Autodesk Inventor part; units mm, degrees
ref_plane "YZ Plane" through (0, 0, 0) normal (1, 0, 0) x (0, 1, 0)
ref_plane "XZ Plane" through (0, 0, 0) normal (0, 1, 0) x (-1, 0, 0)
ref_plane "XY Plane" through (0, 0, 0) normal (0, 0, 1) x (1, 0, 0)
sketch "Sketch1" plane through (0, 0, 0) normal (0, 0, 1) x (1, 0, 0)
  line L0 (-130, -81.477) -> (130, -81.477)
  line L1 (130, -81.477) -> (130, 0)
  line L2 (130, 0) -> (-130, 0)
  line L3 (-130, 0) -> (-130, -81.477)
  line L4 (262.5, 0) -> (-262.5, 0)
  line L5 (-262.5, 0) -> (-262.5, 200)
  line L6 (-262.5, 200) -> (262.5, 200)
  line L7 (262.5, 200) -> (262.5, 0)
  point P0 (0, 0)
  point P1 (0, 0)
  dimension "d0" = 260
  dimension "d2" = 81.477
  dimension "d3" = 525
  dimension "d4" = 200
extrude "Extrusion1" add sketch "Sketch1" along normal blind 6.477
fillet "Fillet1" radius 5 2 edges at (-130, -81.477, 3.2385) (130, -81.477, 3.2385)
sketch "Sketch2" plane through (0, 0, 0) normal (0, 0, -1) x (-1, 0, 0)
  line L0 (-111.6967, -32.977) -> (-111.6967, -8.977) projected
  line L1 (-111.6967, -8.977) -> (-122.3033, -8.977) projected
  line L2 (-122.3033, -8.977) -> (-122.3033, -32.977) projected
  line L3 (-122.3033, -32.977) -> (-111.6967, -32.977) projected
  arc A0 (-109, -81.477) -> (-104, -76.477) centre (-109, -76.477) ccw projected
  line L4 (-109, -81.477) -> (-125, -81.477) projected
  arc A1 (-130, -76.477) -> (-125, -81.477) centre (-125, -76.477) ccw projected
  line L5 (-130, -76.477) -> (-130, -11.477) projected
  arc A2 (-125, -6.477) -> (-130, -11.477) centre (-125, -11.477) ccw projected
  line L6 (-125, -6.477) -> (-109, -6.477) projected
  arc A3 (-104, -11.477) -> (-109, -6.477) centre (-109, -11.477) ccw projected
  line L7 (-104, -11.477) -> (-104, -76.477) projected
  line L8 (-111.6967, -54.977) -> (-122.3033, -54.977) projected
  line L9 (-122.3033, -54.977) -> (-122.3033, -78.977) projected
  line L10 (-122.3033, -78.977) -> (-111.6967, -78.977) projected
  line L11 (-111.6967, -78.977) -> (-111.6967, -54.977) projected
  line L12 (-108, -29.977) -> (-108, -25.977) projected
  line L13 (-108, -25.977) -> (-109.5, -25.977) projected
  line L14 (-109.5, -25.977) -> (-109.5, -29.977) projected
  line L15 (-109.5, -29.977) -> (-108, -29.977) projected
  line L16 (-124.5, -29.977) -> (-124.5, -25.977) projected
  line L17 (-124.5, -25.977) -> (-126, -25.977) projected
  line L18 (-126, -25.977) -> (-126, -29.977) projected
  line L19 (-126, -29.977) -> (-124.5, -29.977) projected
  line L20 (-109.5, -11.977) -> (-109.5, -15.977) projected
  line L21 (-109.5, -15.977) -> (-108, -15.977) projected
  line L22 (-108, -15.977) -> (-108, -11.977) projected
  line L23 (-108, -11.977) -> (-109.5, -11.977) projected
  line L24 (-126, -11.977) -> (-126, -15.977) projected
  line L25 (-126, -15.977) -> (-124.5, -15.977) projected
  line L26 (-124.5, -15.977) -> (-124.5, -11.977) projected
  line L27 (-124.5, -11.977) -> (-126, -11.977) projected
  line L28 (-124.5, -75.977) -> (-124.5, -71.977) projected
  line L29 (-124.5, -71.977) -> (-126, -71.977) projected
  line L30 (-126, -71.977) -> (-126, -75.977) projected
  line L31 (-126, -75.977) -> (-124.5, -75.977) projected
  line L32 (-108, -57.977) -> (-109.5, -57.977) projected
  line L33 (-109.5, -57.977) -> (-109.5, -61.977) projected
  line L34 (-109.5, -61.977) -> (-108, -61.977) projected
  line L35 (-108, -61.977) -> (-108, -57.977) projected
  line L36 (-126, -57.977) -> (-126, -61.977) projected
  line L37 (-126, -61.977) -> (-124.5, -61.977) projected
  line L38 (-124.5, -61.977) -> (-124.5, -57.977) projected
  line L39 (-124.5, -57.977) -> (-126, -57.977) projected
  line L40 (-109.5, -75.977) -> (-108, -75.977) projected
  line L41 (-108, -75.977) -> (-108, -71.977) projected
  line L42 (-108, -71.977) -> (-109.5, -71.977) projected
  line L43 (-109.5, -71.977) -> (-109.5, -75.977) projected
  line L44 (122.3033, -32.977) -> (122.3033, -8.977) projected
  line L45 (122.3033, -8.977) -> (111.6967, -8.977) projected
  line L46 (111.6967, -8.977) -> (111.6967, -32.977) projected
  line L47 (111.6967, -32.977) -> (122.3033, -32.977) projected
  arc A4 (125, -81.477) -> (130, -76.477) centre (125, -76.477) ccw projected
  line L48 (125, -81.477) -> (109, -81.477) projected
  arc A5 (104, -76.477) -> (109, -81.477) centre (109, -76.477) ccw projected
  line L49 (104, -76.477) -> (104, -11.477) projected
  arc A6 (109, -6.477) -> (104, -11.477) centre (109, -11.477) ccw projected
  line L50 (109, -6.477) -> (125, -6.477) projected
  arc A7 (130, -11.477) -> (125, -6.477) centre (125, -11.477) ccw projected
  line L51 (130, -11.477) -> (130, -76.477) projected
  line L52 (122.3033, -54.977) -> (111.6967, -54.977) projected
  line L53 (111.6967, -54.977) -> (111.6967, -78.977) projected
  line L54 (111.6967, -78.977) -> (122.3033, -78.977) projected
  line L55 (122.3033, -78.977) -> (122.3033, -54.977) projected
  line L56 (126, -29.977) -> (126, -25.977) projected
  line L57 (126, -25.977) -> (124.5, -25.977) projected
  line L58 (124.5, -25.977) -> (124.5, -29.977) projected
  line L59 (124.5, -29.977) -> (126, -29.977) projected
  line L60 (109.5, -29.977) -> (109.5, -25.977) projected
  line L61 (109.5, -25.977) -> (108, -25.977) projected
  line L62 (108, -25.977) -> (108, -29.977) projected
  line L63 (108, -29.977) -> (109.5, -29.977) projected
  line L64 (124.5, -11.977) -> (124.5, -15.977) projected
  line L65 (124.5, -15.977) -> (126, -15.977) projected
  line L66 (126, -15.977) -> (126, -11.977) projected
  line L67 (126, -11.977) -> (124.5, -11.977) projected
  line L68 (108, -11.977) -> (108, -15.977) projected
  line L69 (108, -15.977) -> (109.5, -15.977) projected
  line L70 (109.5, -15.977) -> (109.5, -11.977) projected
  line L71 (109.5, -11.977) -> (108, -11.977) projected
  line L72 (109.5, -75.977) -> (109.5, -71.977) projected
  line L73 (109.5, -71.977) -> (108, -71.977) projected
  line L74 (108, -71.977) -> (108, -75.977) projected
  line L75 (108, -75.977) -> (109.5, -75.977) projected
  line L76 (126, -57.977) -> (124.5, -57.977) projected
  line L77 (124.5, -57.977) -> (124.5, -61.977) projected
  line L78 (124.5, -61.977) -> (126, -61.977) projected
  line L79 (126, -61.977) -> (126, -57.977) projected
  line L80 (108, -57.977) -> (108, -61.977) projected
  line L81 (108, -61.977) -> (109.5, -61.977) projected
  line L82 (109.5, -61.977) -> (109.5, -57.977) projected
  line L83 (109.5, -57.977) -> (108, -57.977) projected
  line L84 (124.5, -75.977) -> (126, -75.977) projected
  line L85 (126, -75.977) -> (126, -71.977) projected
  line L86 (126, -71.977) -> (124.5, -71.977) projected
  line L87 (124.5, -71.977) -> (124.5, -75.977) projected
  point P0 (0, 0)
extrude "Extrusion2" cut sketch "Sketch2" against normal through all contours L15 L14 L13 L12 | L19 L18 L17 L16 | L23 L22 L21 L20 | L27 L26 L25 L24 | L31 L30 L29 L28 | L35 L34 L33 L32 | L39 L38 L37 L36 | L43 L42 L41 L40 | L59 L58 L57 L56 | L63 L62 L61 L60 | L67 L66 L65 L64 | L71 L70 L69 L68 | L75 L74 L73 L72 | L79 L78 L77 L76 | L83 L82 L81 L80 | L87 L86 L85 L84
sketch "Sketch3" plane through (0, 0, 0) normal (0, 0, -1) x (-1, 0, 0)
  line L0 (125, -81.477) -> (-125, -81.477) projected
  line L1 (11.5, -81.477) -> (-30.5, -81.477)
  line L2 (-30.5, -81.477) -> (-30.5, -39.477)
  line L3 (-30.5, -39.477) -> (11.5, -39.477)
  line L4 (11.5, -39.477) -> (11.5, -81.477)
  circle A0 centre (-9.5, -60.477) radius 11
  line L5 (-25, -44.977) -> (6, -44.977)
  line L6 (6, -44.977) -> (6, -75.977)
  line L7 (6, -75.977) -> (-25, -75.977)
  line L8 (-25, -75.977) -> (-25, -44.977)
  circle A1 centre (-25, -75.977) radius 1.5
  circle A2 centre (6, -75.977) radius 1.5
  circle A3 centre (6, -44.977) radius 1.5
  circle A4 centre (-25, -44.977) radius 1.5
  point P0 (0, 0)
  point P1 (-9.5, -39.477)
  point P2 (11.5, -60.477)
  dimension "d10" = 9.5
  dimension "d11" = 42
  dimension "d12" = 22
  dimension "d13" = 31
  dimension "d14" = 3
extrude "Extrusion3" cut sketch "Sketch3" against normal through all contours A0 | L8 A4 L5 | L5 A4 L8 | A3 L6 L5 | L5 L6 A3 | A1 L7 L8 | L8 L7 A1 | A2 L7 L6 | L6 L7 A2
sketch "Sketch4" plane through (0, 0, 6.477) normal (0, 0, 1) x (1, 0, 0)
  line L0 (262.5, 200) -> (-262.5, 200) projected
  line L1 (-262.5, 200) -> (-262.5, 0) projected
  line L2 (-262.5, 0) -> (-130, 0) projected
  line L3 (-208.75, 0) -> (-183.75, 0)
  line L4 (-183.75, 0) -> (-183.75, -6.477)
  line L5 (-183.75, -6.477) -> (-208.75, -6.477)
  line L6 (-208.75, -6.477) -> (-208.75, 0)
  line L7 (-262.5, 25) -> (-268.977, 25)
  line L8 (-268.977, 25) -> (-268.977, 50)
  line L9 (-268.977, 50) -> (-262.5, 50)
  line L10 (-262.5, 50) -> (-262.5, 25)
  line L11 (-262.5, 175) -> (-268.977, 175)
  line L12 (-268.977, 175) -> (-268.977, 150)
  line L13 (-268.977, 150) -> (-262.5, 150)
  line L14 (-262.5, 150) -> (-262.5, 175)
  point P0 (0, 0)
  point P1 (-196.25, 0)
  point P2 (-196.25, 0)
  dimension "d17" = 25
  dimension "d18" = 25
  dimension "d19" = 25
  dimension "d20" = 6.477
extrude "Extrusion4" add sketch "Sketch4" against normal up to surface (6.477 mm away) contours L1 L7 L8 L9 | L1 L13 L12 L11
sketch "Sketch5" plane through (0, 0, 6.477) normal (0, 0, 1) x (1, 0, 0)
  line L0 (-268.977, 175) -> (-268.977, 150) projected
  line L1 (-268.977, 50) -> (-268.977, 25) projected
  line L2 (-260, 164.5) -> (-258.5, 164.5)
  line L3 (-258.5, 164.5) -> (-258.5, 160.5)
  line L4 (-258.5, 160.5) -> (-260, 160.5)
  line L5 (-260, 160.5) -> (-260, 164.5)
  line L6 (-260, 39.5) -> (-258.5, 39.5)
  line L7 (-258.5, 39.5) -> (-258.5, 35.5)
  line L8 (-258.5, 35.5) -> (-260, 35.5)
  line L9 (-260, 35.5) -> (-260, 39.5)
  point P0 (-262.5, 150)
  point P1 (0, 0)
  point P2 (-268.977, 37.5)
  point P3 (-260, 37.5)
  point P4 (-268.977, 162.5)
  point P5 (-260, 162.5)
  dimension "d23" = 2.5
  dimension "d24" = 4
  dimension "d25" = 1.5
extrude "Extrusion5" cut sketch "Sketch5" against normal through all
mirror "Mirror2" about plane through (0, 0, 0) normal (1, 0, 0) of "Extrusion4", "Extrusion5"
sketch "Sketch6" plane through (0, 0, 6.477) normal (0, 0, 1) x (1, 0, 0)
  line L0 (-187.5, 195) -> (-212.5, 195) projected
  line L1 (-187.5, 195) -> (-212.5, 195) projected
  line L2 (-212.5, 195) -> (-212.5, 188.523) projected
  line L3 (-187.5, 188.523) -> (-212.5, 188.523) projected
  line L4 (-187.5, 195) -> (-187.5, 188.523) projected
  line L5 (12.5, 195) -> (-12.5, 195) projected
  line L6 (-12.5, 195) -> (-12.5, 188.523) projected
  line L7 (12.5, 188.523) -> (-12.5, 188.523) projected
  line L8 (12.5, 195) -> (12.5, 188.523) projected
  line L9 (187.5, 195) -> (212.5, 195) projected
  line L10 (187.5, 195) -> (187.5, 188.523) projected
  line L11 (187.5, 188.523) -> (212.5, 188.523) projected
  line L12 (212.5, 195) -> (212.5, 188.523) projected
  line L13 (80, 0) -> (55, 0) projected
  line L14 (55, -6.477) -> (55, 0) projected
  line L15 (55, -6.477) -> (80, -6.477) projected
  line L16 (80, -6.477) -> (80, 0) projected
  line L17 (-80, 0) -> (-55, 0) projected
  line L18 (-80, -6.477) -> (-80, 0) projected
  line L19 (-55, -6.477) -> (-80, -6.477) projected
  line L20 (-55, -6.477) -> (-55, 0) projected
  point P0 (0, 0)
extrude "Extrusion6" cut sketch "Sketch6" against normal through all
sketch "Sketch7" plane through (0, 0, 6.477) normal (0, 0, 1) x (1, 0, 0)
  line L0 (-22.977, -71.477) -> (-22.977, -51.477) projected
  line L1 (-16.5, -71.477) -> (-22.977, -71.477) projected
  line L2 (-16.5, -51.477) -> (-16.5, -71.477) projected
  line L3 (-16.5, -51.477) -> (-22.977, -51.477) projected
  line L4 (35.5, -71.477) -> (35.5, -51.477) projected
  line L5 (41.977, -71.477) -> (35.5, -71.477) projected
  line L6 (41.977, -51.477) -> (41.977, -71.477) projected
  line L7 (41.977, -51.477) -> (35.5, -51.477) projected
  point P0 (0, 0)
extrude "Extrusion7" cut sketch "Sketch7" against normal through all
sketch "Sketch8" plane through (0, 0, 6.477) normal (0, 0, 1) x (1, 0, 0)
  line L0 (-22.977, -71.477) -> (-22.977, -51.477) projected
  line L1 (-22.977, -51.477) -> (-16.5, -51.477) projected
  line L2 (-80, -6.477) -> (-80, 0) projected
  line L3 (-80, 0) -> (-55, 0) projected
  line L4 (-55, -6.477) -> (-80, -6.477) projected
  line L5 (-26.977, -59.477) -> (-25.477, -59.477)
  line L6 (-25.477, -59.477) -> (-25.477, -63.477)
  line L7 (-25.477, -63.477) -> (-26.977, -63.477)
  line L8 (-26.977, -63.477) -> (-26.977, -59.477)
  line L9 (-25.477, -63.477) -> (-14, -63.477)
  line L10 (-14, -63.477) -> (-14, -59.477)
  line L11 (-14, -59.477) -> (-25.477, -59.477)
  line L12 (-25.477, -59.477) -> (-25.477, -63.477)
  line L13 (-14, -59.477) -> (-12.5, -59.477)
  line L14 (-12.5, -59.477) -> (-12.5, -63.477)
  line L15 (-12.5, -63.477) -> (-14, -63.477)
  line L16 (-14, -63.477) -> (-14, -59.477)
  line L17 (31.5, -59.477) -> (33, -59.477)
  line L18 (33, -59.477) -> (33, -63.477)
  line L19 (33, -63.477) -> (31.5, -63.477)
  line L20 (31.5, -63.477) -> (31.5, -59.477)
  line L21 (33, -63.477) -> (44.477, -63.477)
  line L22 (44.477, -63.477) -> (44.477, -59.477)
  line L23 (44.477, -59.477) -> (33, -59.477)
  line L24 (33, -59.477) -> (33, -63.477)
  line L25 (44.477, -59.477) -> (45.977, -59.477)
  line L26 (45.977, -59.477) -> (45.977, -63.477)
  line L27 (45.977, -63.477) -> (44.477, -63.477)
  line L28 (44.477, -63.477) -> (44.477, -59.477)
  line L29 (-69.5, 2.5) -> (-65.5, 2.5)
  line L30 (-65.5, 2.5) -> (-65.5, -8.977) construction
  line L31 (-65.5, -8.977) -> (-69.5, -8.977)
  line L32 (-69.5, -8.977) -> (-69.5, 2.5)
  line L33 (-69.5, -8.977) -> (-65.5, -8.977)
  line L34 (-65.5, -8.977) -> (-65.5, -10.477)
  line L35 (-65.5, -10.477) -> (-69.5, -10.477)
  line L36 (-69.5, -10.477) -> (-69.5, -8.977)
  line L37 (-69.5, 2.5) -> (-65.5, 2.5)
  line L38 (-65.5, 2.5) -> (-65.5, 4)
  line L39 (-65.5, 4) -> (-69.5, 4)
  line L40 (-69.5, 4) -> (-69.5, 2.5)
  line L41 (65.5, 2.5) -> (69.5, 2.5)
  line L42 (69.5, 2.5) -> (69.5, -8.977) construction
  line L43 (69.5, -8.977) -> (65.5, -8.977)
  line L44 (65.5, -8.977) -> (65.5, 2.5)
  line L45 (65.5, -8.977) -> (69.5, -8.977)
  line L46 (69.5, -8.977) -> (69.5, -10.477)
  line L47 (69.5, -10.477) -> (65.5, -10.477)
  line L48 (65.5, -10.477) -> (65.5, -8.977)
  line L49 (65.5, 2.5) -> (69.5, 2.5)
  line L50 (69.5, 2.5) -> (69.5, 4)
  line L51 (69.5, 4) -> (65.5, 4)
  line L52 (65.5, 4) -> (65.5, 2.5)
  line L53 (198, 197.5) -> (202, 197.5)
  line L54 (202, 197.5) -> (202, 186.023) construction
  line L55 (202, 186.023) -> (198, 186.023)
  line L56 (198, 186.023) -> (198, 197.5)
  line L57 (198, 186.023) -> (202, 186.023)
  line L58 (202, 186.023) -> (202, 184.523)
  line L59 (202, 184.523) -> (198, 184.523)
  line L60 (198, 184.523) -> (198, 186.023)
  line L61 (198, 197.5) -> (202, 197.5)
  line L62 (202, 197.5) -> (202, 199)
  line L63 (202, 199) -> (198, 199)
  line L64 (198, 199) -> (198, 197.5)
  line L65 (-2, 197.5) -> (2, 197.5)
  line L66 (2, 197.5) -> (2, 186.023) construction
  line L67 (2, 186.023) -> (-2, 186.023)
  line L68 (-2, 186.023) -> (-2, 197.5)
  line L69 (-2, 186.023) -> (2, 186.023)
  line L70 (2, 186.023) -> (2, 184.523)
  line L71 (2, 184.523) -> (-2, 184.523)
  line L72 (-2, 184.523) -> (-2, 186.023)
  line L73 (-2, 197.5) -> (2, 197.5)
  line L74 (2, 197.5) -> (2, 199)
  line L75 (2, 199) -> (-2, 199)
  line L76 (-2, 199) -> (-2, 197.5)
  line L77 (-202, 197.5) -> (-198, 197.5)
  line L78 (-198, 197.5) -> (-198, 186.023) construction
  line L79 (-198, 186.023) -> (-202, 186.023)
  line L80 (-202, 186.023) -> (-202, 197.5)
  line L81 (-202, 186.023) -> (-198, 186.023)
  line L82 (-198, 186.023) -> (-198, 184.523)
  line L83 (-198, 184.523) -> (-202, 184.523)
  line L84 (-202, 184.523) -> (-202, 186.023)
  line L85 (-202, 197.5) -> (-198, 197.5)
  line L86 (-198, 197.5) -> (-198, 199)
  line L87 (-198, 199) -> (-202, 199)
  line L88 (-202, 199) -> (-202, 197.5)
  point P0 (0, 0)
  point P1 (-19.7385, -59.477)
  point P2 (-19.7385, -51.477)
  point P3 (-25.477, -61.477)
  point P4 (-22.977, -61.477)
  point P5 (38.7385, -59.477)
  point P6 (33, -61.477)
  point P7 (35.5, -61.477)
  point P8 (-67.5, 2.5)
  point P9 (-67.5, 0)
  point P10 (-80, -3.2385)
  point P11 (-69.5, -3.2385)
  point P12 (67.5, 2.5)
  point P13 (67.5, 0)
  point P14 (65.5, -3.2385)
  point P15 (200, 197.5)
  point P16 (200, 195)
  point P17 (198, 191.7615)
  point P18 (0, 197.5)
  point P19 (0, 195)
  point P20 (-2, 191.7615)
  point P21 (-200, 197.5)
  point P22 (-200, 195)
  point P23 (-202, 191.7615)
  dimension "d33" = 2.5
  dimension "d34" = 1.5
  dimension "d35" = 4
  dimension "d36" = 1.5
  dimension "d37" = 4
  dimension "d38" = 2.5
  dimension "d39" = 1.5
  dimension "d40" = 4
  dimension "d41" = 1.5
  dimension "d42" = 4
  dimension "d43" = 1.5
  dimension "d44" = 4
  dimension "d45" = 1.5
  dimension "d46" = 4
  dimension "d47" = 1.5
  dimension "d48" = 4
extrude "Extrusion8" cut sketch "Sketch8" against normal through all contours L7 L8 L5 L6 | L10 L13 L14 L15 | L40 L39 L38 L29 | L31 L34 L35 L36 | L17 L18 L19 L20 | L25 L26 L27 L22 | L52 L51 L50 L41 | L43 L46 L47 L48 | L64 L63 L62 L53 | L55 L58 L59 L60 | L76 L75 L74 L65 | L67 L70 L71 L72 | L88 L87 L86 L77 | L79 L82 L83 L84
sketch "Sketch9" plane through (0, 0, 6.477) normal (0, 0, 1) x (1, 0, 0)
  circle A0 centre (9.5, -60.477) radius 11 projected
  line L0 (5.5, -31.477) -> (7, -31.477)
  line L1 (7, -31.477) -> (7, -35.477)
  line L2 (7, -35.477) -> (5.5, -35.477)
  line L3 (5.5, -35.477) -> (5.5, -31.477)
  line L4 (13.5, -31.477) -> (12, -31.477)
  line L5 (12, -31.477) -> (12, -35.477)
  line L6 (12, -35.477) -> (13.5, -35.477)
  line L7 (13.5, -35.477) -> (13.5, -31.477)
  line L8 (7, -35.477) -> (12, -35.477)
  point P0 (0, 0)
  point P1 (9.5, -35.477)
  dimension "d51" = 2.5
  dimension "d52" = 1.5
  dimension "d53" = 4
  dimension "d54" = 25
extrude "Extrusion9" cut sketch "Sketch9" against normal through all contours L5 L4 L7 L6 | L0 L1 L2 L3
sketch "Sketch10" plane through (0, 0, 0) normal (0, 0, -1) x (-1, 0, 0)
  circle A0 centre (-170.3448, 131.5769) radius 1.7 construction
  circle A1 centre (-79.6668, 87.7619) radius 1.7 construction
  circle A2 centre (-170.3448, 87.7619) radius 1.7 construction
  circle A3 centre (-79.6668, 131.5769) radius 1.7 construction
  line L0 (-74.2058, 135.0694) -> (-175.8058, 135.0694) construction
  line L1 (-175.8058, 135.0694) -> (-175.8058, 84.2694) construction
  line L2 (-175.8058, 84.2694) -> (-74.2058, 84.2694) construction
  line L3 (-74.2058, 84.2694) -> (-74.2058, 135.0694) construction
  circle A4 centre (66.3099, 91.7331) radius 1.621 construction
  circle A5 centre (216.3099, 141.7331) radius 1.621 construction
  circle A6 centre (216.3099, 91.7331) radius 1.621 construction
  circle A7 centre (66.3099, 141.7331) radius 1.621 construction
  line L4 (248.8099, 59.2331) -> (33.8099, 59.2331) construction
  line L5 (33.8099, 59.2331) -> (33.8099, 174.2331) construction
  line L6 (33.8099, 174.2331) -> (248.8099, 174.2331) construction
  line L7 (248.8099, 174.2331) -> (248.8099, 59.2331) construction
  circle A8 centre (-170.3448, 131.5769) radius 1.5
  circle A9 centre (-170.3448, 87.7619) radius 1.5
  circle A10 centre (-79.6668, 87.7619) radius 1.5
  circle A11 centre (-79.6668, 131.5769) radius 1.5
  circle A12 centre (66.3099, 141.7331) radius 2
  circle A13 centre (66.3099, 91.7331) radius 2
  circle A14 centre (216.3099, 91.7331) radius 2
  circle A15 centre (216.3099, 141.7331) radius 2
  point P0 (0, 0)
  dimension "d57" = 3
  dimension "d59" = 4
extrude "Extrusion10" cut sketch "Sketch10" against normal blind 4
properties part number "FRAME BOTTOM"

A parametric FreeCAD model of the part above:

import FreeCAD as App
import Part
import Sketcher

V = App.Vector


def edges_at(feature, points):
    """Names of the edges that pass closest to the given points."""
    edges = feature.Shape.Edges
    near = lambda p: min(range(len(edges)), key=lambda i: edges[i].distToShape(Part.Vertex(*p))[0])
    return sorted({f"Edge{near(p) + 1}" for p in points})


def add_polygon(sketch, points):
    """Adds a closed chain of lines whose ends are joined by coincident constraints."""
    first, n = sketch.GeometryCount, len(points)
    for a, b in zip(points, points[1:] + points[:1]):
        sketch.addGeometry(Part.LineSegment(App.Vector(*a, 0), App.Vector(*b, 0)), False)
    for i in range(n):
        sketch.addConstraint(Sketcher.Constraint("Coincident", first + i, 2, first + (i + 1) % n, 1))

doc = App.newDocument("Part")
body = doc.addObject("PartDesign::Body", "Body")

sketch1 = body.newObject("Sketcher::SketchObject", "Sketch")
sketch1.AttachmentSupport = (doc.getObject("XY_Plane"), [""])
sketch1.MapMode = "FlatFace"
add_polygon(sketch1, [(-130, 0), (-130, -81), (130, -81), (130, 0), (262, 0), (262, 200), (-262, 200), (-262, 0)])
sketch1.addConstraint([
    Sketcher.Constraint("Vertical", 0),
    Sketcher.Constraint("Horizontal", 1),
    Sketcher.Constraint("Vertical", 2),
    Sketcher.Constraint("Horizontal", 3),
    Sketcher.Constraint("Vertical", 4),
    Sketcher.Constraint("Horizontal", 5),
    Sketcher.Constraint("Vertical", 6),
    Sketcher.Constraint("Horizontal", 7),
    Sketcher.Constraint("Symmetric", 3, 2, 6, 2, -1, 1),
    Sketcher.Constraint("Symmetric", 2, 2, 7, 2, -2),
    Sketcher.Constraint("DistanceX", 1, 1, 1, 2, 260.0),
    Sketcher.Constraint("DistanceX", 5, 2, 5, 1, 525.0),
    Sketcher.Constraint("DistanceY", 4, 1, 4, 2, 200.0),
    Sketcher.Constraint("DistanceY", 0, 2, 0, 1, 81.477),
])
pad1 = body.newObject("PartDesign::Pad", "Pad")
pad1.Profile = sketch1
pad1.Length = 6.477
doc.recompute()

fillet = body.newObject("PartDesign::Fillet", "Fillet")
fillet.Base = (pad1, edges_at(pad1, [(-130, -81.477, 3.239), (130, -81.477, 3.239)]))
fillet.Radius = 5

sketch2 = body.newObject("Sketcher::SketchObject", "Sketch001")
sketch2.AttachmentSupport = (doc.getObject("XY_Plane"), [""])
sketch2.MapMode = "FlatFace"
add_polygon(sketch2, [(109.5, -30), (108, -30), (108, -26), (109.5, -26)])
add_polygon(sketch2, [(126, -30), (124.5, -30), (124.5, -26), (126, -26)])
add_polygon(sketch2, [(108, -12), (109.5, -12), (109.5, -16), (108, -16)])
add_polygon(sketch2, [(124.5, -12), (126, -12), (126, -16), (124.5, -16)])
add_polygon(sketch2, [(126, -76), (124.5, -76), (124.5, -72), (126, -72)])
add_polygon(sketch2, [(108, -62), (108, -58), (109.5, -58), (109.5, -62)])
add_polygon(sketch2, [(124.5, -58), (126, -58), (126, -62), (124.5, -62)])
add_polygon(sketch2, [(109.5, -72), (109.5, -76), (108, -76), (108, -72)])
add_polygon(sketch2, [(-124.5, -30), (-126, -30), (-126, -26), (-124.5, -26)])
add_polygon(sketch2, [(-108, -30), (-109.5, -30), (-109.5, -26), (-108, -26)])
add_polygon(sketch2, [(-126, -12), (-124.5, -12), (-124.5, -16), (-126, -16)])
add_polygon(sketch2, [(-109.5, -12), (-108, -12), (-108, -16), (-109.5, -16)])
add_polygon(sketch2, [(-108, -76), (-109.5, -76), (-109.5, -72), (-108, -72)])
add_polygon(sketch2, [(-126, -62), (-126, -58), (-124.5, -58), (-124.5, -62)])
add_polygon(sketch2, [(-109.5, -58), (-108, -58), (-108, -62), (-109.5, -62)])
add_polygon(sketch2, [(-124.5, -72), (-124.5, -76), (-126, -76), (-126, -72)])
sketch2.addConstraint([
    Sketcher.Constraint("Horizontal", 0),
    Sketcher.Constraint("Vertical", 1),
    Sketcher.Constraint("Horizontal", 2),
    Sketcher.Constraint("Vertical", 3),
    Sketcher.Constraint("Horizontal", 4),
    Sketcher.Constraint("Vertical", 5),
    Sketcher.Constraint("Horizontal", 6),
    Sketcher.Constraint("Vertical", 7),
    Sketcher.Constraint("Horizontal", 8),
    Sketcher.Constraint("Vertical", 9),
    Sketcher.Constraint("Horizontal", 10),
    Sketcher.Constraint("Vertical", 11),
    Sketcher.Constraint("Horizontal", 12),
    Sketcher.Constraint("Vertical", 13),
    Sketcher.Constraint("Horizontal", 14),
    Sketcher.Constraint("Vertical", 15),
    Sketcher.Constraint("Horizontal", 16),
    Sketcher.Constraint("Vertical", 17),
    Sketcher.Constraint("Horizontal", 18),
    Sketcher.Constraint("Vertical", 19),
    Sketcher.Constraint("Vertical", 20),
    Sketcher.Constraint("Horizontal", 21),
    Sketcher.Constraint("Vertical", 22),
    Sketcher.Constraint("Horizontal", 23),
    Sketcher.Constraint("Horizontal", 24),
    Sketcher.Constraint("Vertical", 25),
    Sketcher.Constraint("Horizontal", 26),
    Sketcher.Constraint("Vertical", 27),
    Sketcher.Constraint("Vertical", 28),
    Sketcher.Constraint("Horizontal", 29),
    Sketcher.Constraint("Vertical", 30),
    Sketcher.Constraint("Horizontal", 31),
    Sketcher.Constraint("Horizontal", 32),
    Sketcher.Constraint("Vertical", 33),
    Sketcher.Constraint("Horizontal", 34),
    Sketcher.Constraint("Vertical", 35),
    Sketcher.Constraint("Horizontal", 36),
    Sketcher.Constraint("Vertical", 37),
    Sketcher.Constraint("Horizontal", 38),
    Sketcher.Constraint("Vertical", 39),
    Sketcher.Constraint("Horizontal", 40),
    Sketcher.Constraint("Vertical", 41),
    Sketcher.Constraint("Horizontal", 42),
    Sketcher.Constraint("Vertical", 43),
    Sketcher.Constraint("Horizontal", 44),
    Sketcher.Constraint("Vertical", 45),
    Sketcher.Constraint("Horizontal", 46),
    Sketcher.Constraint("Vertical", 47),
    Sketcher.Constraint("Horizontal", 48),
    Sketcher.Constraint("Vertical", 49),
    Sketcher.Constraint("Horizontal", 50),
    Sketcher.Constraint("Vertical", 51),
    Sketcher.Constraint("Vertical", 52),
    Sketcher.Constraint("Horizontal", 53),
    Sketcher.Constraint("Vertical", 54),
    Sketcher.Constraint("Horizontal", 55),
    Sketcher.Constraint("Horizontal", 56),
    Sketcher.Constraint("Vertical", 57),
    Sketcher.Constraint("Horizontal", 58),
    Sketcher.Constraint("Vertical", 59),
    Sketcher.Constraint("Vertical", 60),
    Sketcher.Constraint("Horizontal", 61),
    Sketcher.Constraint("Vertical", 62),
    Sketcher.Constraint("Horizontal", 63),
    Sketcher.Constraint("Symmetric", 7, 2, 32, 2, -2),
    Sketcher.Constraint("Symmetric", 5, 2, 34, 2, -2),
    Sketcher.Constraint("Symmetric", 3, 2, 36, 2, -2),
    Sketcher.Constraint("Symmetric", 1, 2, 38, 2, -2),
    Sketcher.Constraint("Symmetric", 15, 2, 40, 2, -2),
    Sketcher.Constraint("Symmetric", 13, 2, 42, 2, -2),
    Sketcher.Constraint("Symmetric", 11, 2, 44, 2, -2),
    Sketcher.Constraint("Symmetric", 9, 2, 46, 2, -2),
    Sketcher.Constraint("Symmetric", 28, 2, 48, 2, -2),
    Sketcher.Constraint("Symmetric", 30, 2, 50, 2, -2),
    Sketcher.Constraint("Symmetric", 24, 2, 52, 2, -2),
    Sketcher.Constraint("Symmetric", 26, 2, 54, 2, -2),
    Sketcher.Constraint("Symmetric", 20, 2, 56, 2, -2),
    Sketcher.Constraint("Symmetric", 22, 2, 58, 2, -2),
    Sketcher.Constraint("Symmetric", 16, 2, 60, 2, -2),
    Sketcher.Constraint("Symmetric", 18, 2, 62, 2, -2),
    Sketcher.Constraint("Horizontal", 3, 2, 4, 2),
    Sketcher.Constraint("Horizontal", 2, 2, 5, 2),
    Sketcher.Constraint("Horizontal", 11, 2, 12, 2),
    Sketcher.Constraint("Horizontal", 10, 2, 13, 2),
    Sketcher.Constraint("Horizontal", 21, 2, 24, 2),
    Sketcher.Constraint("Horizontal", 23, 2, 25, 2),
    Sketcher.Constraint("Horizontal", 19, 2, 28, 2),
    Sketcher.Constraint("Horizontal", 18, 2, 30, 2),
    Sketcher.Constraint("Vertical", 3, 2, 8, 2),
    Sketcher.Constraint("Vertical", 1, 2, 10, 2),
    Sketcher.Constraint("Vertical", 7, 2, 12, 2),
    Sketcher.Constraint("Vertical", 5, 2, 14, 2),
    Sketcher.Constraint("Vertical", 15, 2, 16, 2),
    Sketcher.Constraint("Vertical", 13, 2, 18, 2),
    Sketcher.Constraint("Vertical", 11, 2, 20, 2),
    Sketcher.Constraint("Vertical", 9, 2, 21, 2),
    Sketcher.Constraint("Vertical", 19, 2, 24, 2),
    Sketcher.Constraint("Vertical", 17, 2, 26, 2),
    Sketcher.Constraint("Vertical", 22, 2, 28, 2),
    Sketcher.Constraint("Vertical", 23, 2, 29, 2),
    Sketcher.Constraint("Equal", 2, 4),
    Sketcher.Constraint("Equal", 7, 9),
    Sketcher.Constraint("Equal", 15, 17),
    Sketcher.Constraint("Equal", 19, 20),
    Sketcher.Constraint("DistanceY", 1, 1, 1, 2, 4.0),
    Sketcher.Constraint("DistanceX", 0, 2, 0, 1, 1.5),
    Sketcher.Constraint("DistanceX", -1, 1, 0, 2, 108.0),
    Sketcher.Constraint("DistanceX", -1, 1, 6, 2, 126.0),
    Sketcher.Constraint("DistanceY", 0, 2, -1, 1, 29.977),
    Sketcher.Constraint("DistanceY", 8, 2, -1, 1, 11.977),
    Sketcher.Constraint("DistanceY", 16, 2, -1, 1, 75.977),
    Sketcher.Constraint("DistanceY", 20, 2, -1, 1, 57.977),
])
pocket1 = body.newObject("PartDesign::Pocket", "Pocket")
pocket1.Profile = sketch2
pocket1.Type = "ThroughAll"
pocket1.Reversed = True

sketch3 = body.newObject("Sketcher::SketchObject", "Sketch002")
sketch3.AttachmentSupport = (doc.getObject("XY_Plane"), [""])
sketch3.MapMode = "FlatFace"
sketch3.addGeometry([
    Part.Circle(V(9.5, -60.5, 0), V(0, 0, 1), 11),
    Part.Circle(V(25, -45, 0), V(0, 0, 1), 1.5),
    Part.Circle(V(-6, -45, 0), V(0, 0, 1), 1.5),
    Part.Circle(V(25, -76, 0), V(0, 0, 1), 1.5),
    Part.Circle(V(-6, -76, 0), V(0, 0, 1), 1.5),
], False)
sketch3.addConstraint([
    Sketcher.Constraint("Equal", 1, 2),
    Sketcher.Constraint("Equal", 2, 3),
    Sketcher.Constraint("Equal", 3, 4),
    Sketcher.Constraint("Horizontal", 1, 3, 2, 3),
    Sketcher.Constraint("Horizontal", 3, 3, 4, 3),
    Sketcher.Constraint("Vertical", 1, 3, 3, 3),
    Sketcher.Constraint("Vertical", 2, 3, 4, 3),
    Sketcher.Constraint("Diameter", 0, 22.0),
    Sketcher.Constraint("Diameter", 1, 3.0),
    Sketcher.Constraint("DistanceX", 2, 3, 1, 3, 31.0),
    Sketcher.Constraint("DistanceY", 3, 3, 1, 3, 31.0),
    Sketcher.Constraint("DistanceX", -1, 1, 0, 3, 9.5),
    Sketcher.Constraint("DistanceX", -1, 1, 1, 3, 25.0),
    Sketcher.Constraint("DistanceY", 0, 3, 1, 3, 15.5),
    Sketcher.Constraint("DistanceY", 0, 3, -1, 1, 60.477),
])
pocket2 = body.newObject("PartDesign::Pocket", "Pocket001")
pocket2.Profile = sketch3
pocket2.Type = "ThroughAll"
pocket2.Reversed = True

sketch4 = body.newObject("Sketcher::SketchObject", "Sketch003")
sketch4.AttachmentSupport = (doc.getObject("XY_Plane"), [""])
sketch4.MapMode = "FlatFace"
sketch4.AttachmentOffset = App.Placement(V(0, 0, 6.477), App.Rotation())
add_polygon(sketch4, [(-262, 25), (-262, 50), (-269, 50), (-269, 25)])
add_polygon(sketch4, [(-262, 150), (-262, 175), (-269, 175), (-269, 150)])
sketch4.addConstraint([
    Sketcher.Constraint("Vertical", 0),
    Sketcher.Constraint("Horizontal", 1),
    Sketcher.Constraint("Vertical", 2),
    Sketcher.Constraint("Horizontal", 3),
    Sketcher.Constraint("Vertical", 4),
    Sketcher.Constraint("Horizontal", 5),
    Sketcher.Constraint("Vertical", 6),
    Sketcher.Constraint("Horizontal", 7),
    Sketcher.Constraint("Vertical", 3, 2, 4, 2),
    Sketcher.Constraint("Vertical", 2, 2, 5, 2),
    Sketcher.Constraint("Equal", 2, 4),
    Sketcher.Constraint("DistanceY", 0, 1, 0, 2, 25.0),
    Sketcher.Constraint("DistanceY", -1, 1, 2, 2, 25.0),
    Sketcher.Constraint("DistanceX", 1, 2, 1, 1, 6.477),
    Sketcher.Constraint("DistanceY", -1, 1, 4, 2, 175.0),
    Sketcher.Constraint("DistanceX", 0, 2, -1, 1, 262.5),
])
pad2 = body.newObject("PartDesign::Pad", "Pad001")
pad2.Profile = sketch4
pad2.Length = 6.477
pad2.Reversed = True

sketch5 = body.newObject("Sketcher::SketchObject", "Sketch004")
sketch5.AttachmentSupport = (doc.getObject("XY_Plane"), [""])
sketch5.MapMode = "FlatFace"
sketch5.AttachmentOffset = App.Placement(V(0, 0, 6.477), App.Rotation())
add_polygon(sketch5, [(-258.5, 164.5), (-260, 164.5), (-260, 160.5), (-258.5, 160.5)])
add_polygon(sketch5, [(-258.5, 39.5), (-260, 39.5), (-260, 35.5), (-258.5, 35.5)])
sketch5.addConstraint([
    Sketcher.Constraint("Horizontal", 0),
    Sketcher.Constraint("Vertical", 1),
    Sketcher.Constraint("Horizontal", 2),
    Sketcher.Constraint("Vertical", 3),
    Sketcher.Constraint("Horizontal", 4),
    Sketcher.Constraint("Vertical", 5),
    Sketcher.Constraint("Horizontal", 6),
    Sketcher.Constraint("Vertical", 7),
    Sketcher.Constraint("Vertical", 1, 2, 4, 2),
    Sketcher.Constraint("Vertical", 3, 2, 6, 2),
    Sketcher.Constraint("Equal", 3, 5),
    Sketcher.Constraint("DistanceY", 1, 2, 1, 1, 4.0),
    Sketcher.Constraint("DistanceX", 0, 2, 0, 1, 1.5),
    Sketcher.Constraint("DistanceX", 0, 2, -1, 1, 260.0),
    Sketcher.Constraint("DistanceY", 4, 2, 1, 2, 121.0),
    Sketcher.Constraint("DistanceY", -1, 1, 0, 2, 164.5),
])
pocket3 = body.newObject("PartDesign::Pocket", "Pocket002")
pocket3.Profile = sketch5
pocket3.Type = "ThroughAll"
doc.recompute()

mirrored = body.newObject("PartDesign::Mirrored", "Mirrored")
mirrored.Originals = [pad2, pocket3]
mirrored.MirrorPlane = (doc.getObject("YZ_Plane"), [""])
body.Tip = mirrored

sketch6 = body.newObject("Sketcher::SketchObject", "Sketch005")
sketch6.AttachmentSupport = (doc.getObject("XY_Plane"), [""])
sketch6.MapMode = "FlatFace"
sketch6.AttachmentOffset = App.Placement(V(0, 0, 6.477), App.Rotation())
add_polygon(sketch6, [(-188, 189), (-188, 195), (-212, 195), (-212, 189)])
add_polygon(sketch6, [(12, 189), (12, 195), (-12, 195), (-12, 189)])
add_polygon(sketch6, [(212, 195), (188, 195), (188, 189), (212, 189)])
add_polygon(sketch6, [(80, -6), (80, 0), (55, 0), (55, -6)])
add_polygon(sketch6, [(-55, 0), (-80, 0), (-80, -6), (-55, -6)])
sketch6.addConstraint([
    Sketcher.Constraint("Vertical", 0),
    Sketcher.Constraint("Horizontal", 1),
    Sketcher.Constraint("Vertical", 2),
    Sketcher.Constraint("Horizontal", 3),
    Sketcher.Constraint("Vertical", 4),
    Sketcher.Constraint("Horizontal", 5),
    Sketcher.Constraint("Vertical", 6),
    Sketcher.Constraint("Horizontal", 7),
    Sketcher.Constraint("Horizontal", 8),
    Sketcher.Constraint("Vertical", 9),
    Sketcher.Constraint("Horizontal", 10),
    Sketcher.Constraint("Vertical", 11),
    Sketcher.Constraint("Vertical", 12),
    Sketcher.Constraint("Horizontal", 13),
    Sketcher.Constraint("Vertical", 14),
    Sketcher.Constraint("Horizontal", 15),
    Sketcher.Constraint("Horizontal", 16),
    Sketcher.Constraint("Vertical", 17),
    Sketcher.Constraint("Horizontal", 18),
    Sketcher.Constraint("Vertical", 19),
    Sketcher.Constraint("Symmetric", 12, 2, 16, 2, -1, 1),
    Sketcher.Constraint("Symmetric", 0, 2, 8, 2, -2),
    Sketcher.Constraint("Symmetric", 2, 2, 10, 2, -2),
    Sketcher.Constraint("Symmetric", 14, 2, 18, 2, -2),
    Sketcher.Constraint("PointOnObject", 12, 2, -1),
    Sketcher.Constraint("Horizontal", 1, 2, 4, 2),
    Sketcher.Constraint("Horizontal", 3, 2, 6, 2),
    Sketcher.Constraint("Equal", 3, 5),
    Sketcher.Constraint("Equal", 10, 13),
    Sketcher.Constraint("Equal", 11, 12),
    Sketcher.Constraint("DistanceX", 1, 2, 1, 1, 25.0),
    Sketcher.Constraint("DistanceY", -1, 1, 0, 2, 195.0),
    Sketcher.Constraint("DistanceX", -1, 1, 12, 2, 80.0),
    Sketcher.Constraint("DistanceX", 0, 2, 4, 2, 200.0),
    Sketcher.Constraint("DistanceX", 4, 2, 8, 2, 175.0),
    Sketcher.Constraint("DistanceY", 0, 1, 0, 2, 6.477),
])
pocket4 = body.newObject("PartDesign::Pocket", "Pocket003")
pocket4.Profile = sketch6
pocket4.Type = "ThroughAll"

sketch7 = body.newObject("Sketcher::SketchObject", "Sketch006")
sketch7.AttachmentSupport = (doc.getObject("XY_Plane"), [""])
sketch7.MapMode = "FlatFace"
sketch7.AttachmentOffset = App.Placement(V(0, 0, 6.477), App.Rotation())
add_polygon(sketch7, [(-23, -51), (-23, -71), (-16, -71), (-16, -51)])
add_polygon(sketch7, [(36, -51), (36, -71), (42, -71), (42, -51)])
sketch7.addConstraint([
    Sketcher.Constraint("Vertical", 0),
    Sketcher.Constraint("Horizontal", 1),
    Sketcher.Constraint("Vertical", 2),
    Sketcher.Constraint("Horizontal", 3),
    Sketcher.Constraint("Vertical", 4),
    Sketcher.Constraint("Horizontal", 5),
    Sketcher.Constraint("Vertical", 6),
    Sketcher.Constraint("Horizontal", 7),
    Sketcher.Constraint("Horizontal", 1, 2, 4, 2),
    Sketcher.Constraint("Horizontal", 3, 2, 6, 2),
    Sketcher.Constraint("Equal", 3, 5),
    Sketcher.Constraint("DistanceY", 0, 2, 0, 1, 20.0),
    Sketcher.Constraint("DistanceX", 1, 2, 4, 2, 52.0),
    Sketcher.Constraint("DistanceX", 1, 2, -1, 1, 16.5),
    Sketcher.Constraint("DistanceX", 1, 1, 1, 2, 6.477),
    Sketcher.Constraint("DistanceY", 0, 2, -1, 1, 71.477),
])
pocket5 = body.newObject("PartDesign::Pocket", "Pocket004")
pocket5.Profile = sketch7
pocket5.Type = "ThroughAll"

sketch8 = body.newObject("Sketcher::SketchObject", "Sketch007")
sketch8.AttachmentSupport = (doc.getObject("XY_Plane"), [""])
sketch8.MapMode = "FlatFace"
sketch8.AttachmentOffset = App.Placement(V(0, 0, 6.477), App.Rotation())
add_polygon(sketch8, [(-27, -63.5), (-25.5, -63.5), (-25.5, -59.5), (-27, -59.5)])
add_polygon(sketch8, [(-14, -59.5), (-14, -63.5), (-12.5, -63.5), (-12.5, -59.5)])
add_polygon(sketch8, [(-69.5, 4), (-69.5, 2.5), (-65.5, 2.5), (-65.5, 4)])
add_polygon(sketch8, [(-65.5, -9), (-69.5, -9), (-69.5, -10.5), (-65.5, -10.5)])
add_polygon(sketch8, [(33, -59.5), (31.5, -59.5), (31.5, -63.5), (33, -63.5)])
add_polygon(sketch8, [(46, -59.5), (44.5, -59.5), (44.5, -63.5), (46, -63.5)])
add_polygon(sketch8, [(65.5, 4), (65.5, 2.5), (69.5, 2.5), (69.5, 4)])
add_polygon(sketch8, [(69.5, -9), (65.5, -9), (65.5, -10.5), (69.5, -10.5)])
add_polygon(sketch8, [(198, 199), (198, 197.5), (202, 197.5), (202, 199)])
add_polygon(sketch8, [(202, 186), (198, 186), (198, 184.5), (202, 184.5)])
add_polygon(sketch8, [(-2, 199), (-2, 197.5), (2, 197.5), (2, 199)])
add_polygon(sketch8, [(2, 186), (-2, 186), (-2, 184.5), (2, 184.5)])
add_polygon(sketch8, [(-202, 199), (-202, 197.5), (-198, 197.5), (-198, 199)])
add_polygon(sketch8, [(-198, 186), (-202, 186), (-202, 184.5), (-198, 184.5)])
sketch8.addConstraint([
    Sketcher.Constraint("Horizontal", 0),
    Sketcher.Constraint("Vertical", 1),
    Sketcher.Constraint("Horizontal", 2),
    Sketcher.Constraint("Vertical", 3),
    Sketcher.Constraint("Vertical", 4),
    Sketcher.Constraint("Horizontal", 5),
    Sketcher.Constraint("Vertical", 6),
    Sketcher.Constraint("Horizontal", 7),
    Sketcher.Constraint("Vertical", 8),
    Sketcher.Constraint("Horizontal", 9),
    Sketcher.Constraint("Vertical", 10),
    Sketcher.Constraint("Horizontal", 11),
    Sketcher.Constraint("Horizontal", 12),
    Sketcher.Constraint("Vertical", 13),
    Sketcher.Constraint("Horizontal", 14),
    Sketcher.Constraint("Vertical", 15),
    Sketcher.Constraint("Horizontal", 16),
    Sketcher.Constraint("Vertical", 17),
    Sketcher.Constraint("Horizontal", 18),
    Sketcher.Constraint("Vertical", 19),
    Sketcher.Constraint("Horizontal", 20),
    Sketcher.Constraint("Vertical", 21),
    Sketcher.Constraint("Horizontal", 22),
    Sketcher.Constraint("Vertical", 23),
    Sketcher.Constraint("Vertical", 24),
    Sketcher.Constraint("Horizontal", 25),
    Sketcher.Constraint("Vertical", 26),
    Sketcher.Constraint("Horizontal", 27),
    Sketcher.Constraint("Horizontal", 28),
    Sketcher.Constraint("Vertical", 29),
    Sketcher.Constraint("Horizontal", 30),
    Sketcher.Constraint("Vertical", 31),
    Sketcher.Constraint("Vertical", 32),
    Sketcher.Constraint("Horizontal", 33),
    Sketcher.Constraint("Vertical", 34),
    Sketcher.Constraint("Horizontal", 35),
    Sketcher.Constraint("Horizontal", 36),
    Sketcher.Constraint("Vertical", 37),
    Sketcher.Constraint("Horizontal", 38),
    Sketcher.Constraint("Vertical", 39),
    Sketcher.Constraint("Vertical", 40),
    Sketcher.Constraint("Horizontal", 41),
    Sketcher.Constraint("Vertical", 42),
    Sketcher.Constraint("Horizontal", 43),
    Sketcher.Constraint("Horizontal", 44),
    Sketcher.Constraint("Vertical", 45),
    Sketcher.Constraint("Horizontal", 46),
    Sketcher.Constraint("Vertical", 47),
    Sketcher.Constraint("Vertical", 48),
    Sketcher.Constraint("Horizontal", 49),
    Sketcher.Constraint("Vertical", 50),
    Sketcher.Constraint("Horizontal", 51),
    Sketcher.Constraint("Horizontal", 52),
    Sketcher.Constraint("Vertical", 53),
    Sketcher.Constraint("Horizontal", 54),
    Sketcher.Constraint("Vertical", 55),
    Sketcher.Constraint("Symmetric", 9, 2, 24, 2, -2),
    Sketcher.Constraint("Symmetric", 11, 2, 26, 2, -2),
    Sketcher.Constraint("Symmetric", 15, 2, 28, 2, -2),
    Sketcher.Constraint("Symmetric", 13, 2, 30, 2, -2),
    Sketcher.Constraint("Symmetric", 33, 2, 48, 2, -2),
    Sketcher.Constraint("Symmetric", 35, 2, 50, 2, -2),
    Sketcher.Constraint("Symmetric", 39, 2, 52, 2, -2),
    Sketcher.Constraint("Symmetric", 37, 2, 54, 2, -2),
    Sketcher.Constraint("Horizontal", 3, 2, 4, 2),
    Sketcher.Constraint("Horizontal", 2, 2, 6, 2),
    Sketcher.Constraint("Horizontal", 7, 2, 16, 2),
    Sketcher.Constraint("Horizontal", 5, 2, 17, 2),
    Sketcher.Constraint("Horizontal", 19, 2, 20, 2),
    Sketcher.Constraint("Horizontal", 18, 2, 21, 2),
    Sketcher.Constraint("Horizontal", 33, 2, 40, 2),
    Sketcher.Constraint("Horizontal", 35, 2, 42, 2),
    Sketcher.Constraint("Horizontal", 39, 2, 44, 2),
    Sketcher.Constraint("Horizontal", 38, 2, 45, 2),
    Sketcher.Constraint("Vertical", 11, 2, 12, 2),
    Sketcher.Constraint("Vertical", 10, 2, 14, 2),
    Sketcher.Constraint("Vertical", 35, 2, 36, 2),
    Sketcher.Constraint("Vertical", 34, 2, 38, 2),
    Sketcher.Constraint("Vertical", 43, 2, 44, 2),
    Sketcher.Constraint("Vertical", 42, 2, 46, 2),
    Sketcher.Constraint("Equal", 2, 5),
    Sketcher.Constraint("Equal", 7, 16),
    Sketcher.Constraint("Equal", 18, 20),
    Sketcher.Constraint("Equal", 30, 33),
    Sketcher.Constraint("Equal", 38, 41),
    Sketcher.Constraint("Equal", 54, 1),
    Sketcher.Constraint("Equal", 22, 8),
    Sketcher.Constraint("Equal", 10, 13),
    Sketcher.Constraint("Equal", 31, 32),
    Sketcher.Constraint("Equal", 34, 37),
    Sketcher.Constraint("DistanceX", 9, 1, 9, 2, 4.0),
    Sketcher.Constraint("DistanceX", 0, 1, 0, 2, 1.5),
    Sketcher.Constraint("DistanceY", -1, 1, 10, 2, 4.0),
    Sketcher.Constraint("DistanceX", 4, 2, -1, 1, 14.0),
    Sketcher.Constraint("DistanceX", -1, 1, 18, 2, 33.0),
    Sketcher.Constraint("DistanceX", -1, 1, 32, 2, 198.0),
    Sketcher.Constraint("DistanceY", -1, 1, 34, 2, 199.0),
    Sketcher.Constraint("DistanceX", 40, 2, -1, 1, 2.0),
    Sketcher.Constraint("DistanceX", 8, 2, -1, 1, 69.5),
    Sketcher.Constraint("DistanceY", 2, 2, 12, 2, 50.5),
    Sketcher.Constraint("DistanceX", 0, 2, -1, 1, 25.477),
    Sketcher.Constraint("DistanceY", 0, 2, -1, 1, 63.477),
    Sketcher.Constraint("DistanceX", -1, 1, 20, 2, 44.477),
    Sketcher.Constraint("DistanceY", -1, 1, 36, 2, 186.023),
])
pocket6 = body.newObject("PartDesign::Pocket", "Pocket005")
pocket6.Profile = sketch8
pocket6.Type = "ThroughAll"

sketch9 = body.newObject("Sketcher::SketchObject", "Sketch008")
sketch9.AttachmentSupport = (doc.getObject("XY_Plane"), [""])
sketch9.MapMode = "FlatFace"
sketch9.AttachmentOffset = App.Placement(V(0, 0, 6.477), App.Rotation())
add_polygon(sketch9, [(12, -31.5), (12, -35.5), (13.5, -35.5), (13.5, -31.5)])
add_polygon(sketch9, [(7, -31.5), (5.5, -31.5), (5.5, -35.5), (7, -35.5)])
sketch9.addConstraint([
    Sketcher.Constraint("Vertical", 0),
    Sketcher.Constraint("Horizontal", 1),
    Sketcher.Constraint("Vertical", 2),
    Sketcher.Constraint("Horizontal", 3),
    Sketcher.Constraint("Horizontal", 4),
    Sketcher.Constraint("Vertical", 5),
    Sketcher.Constraint("Horizontal", 6),
    Sketcher.Constraint("Vertical", 7),
    Sketcher.Constraint("Horizontal", 3, 2, 4, 2),
    Sketcher.Constraint("Horizontal", 1, 2, 5, 2),
    Sketcher.Constraint("Equal", 3, 4),
    Sketcher.Constraint("DistanceY", 0, 2, 0, 1, 4.0),
    Sketcher.Constraint("DistanceX", 1, 1, 1, 2, 1.5),
    Sketcher.Constraint("DistanceX", -1, 1, 0, 2, 12.0),
    Sketcher.Constraint("DistanceX", -1, 1, 6, 2, 7.0),
    Sketcher.Constraint("DistanceY", 0, 2, -1, 1, 35.477),
])
pocket7 = body.newObject("PartDesign::Pocket", "Pocket006")
pocket7.Profile = sketch9
pocket7.Type = "ThroughAll"

sketch10 = body.newObject("Sketcher::SketchObject", "Sketch009")
sketch10.AttachmentSupport = (doc.getObject("XY_Plane"), [""])
sketch10.MapMode = "FlatFace"
sketch10.addGeometry([
    Part.Circle(V(170.3, 131.6, 0), V(0, 0, 1), 1.5),
    Part.Circle(V(170.3, 87.8, 0), V(0, 0, 1), 1.5),
    Part.Circle(V(79.7, 87.8, 0), V(0, 0, 1), 1.5),
    Part.Circle(V(79.7, 131.6, 0), V(0, 0, 1), 1.5),
    Part.Circle(V(-66.3, 141.7, 0), V(0, 0, 1), 2),
    Part.Circle(V(-66.3, 91.7, 0), V(0, 0, 1), 2),
    Part.Circle(V(-216.3, 91.7, 0), V(0, 0, 1), 2),
    Part.Circle(V(-216.3, 141.7, 0), V(0, 0, 1), 2),
], False)
sketch10.addConstraint([
    Sketcher.Constraint("Equal", 0, 1),
    Sketcher.Constraint("Equal", 1, 2),
    Sketcher.Constraint("Equal", 2, 3),
    Sketcher.Constraint("Equal", 4, 5),
    Sketcher.Constraint("Equal", 5, 6),
    Sketcher.Constraint("Equal", 6, 7),
    Sketcher.Constraint("Horizontal", 1, 3, 2, 3),
    Sketcher.Constraint("Horizontal", 0, 3, 3, 3),
    Sketcher.Constraint("Horizontal", 5, 3, 6, 3),
    Sketcher.Constraint("Horizontal", 4, 3, 7, 3),
    Sketcher.Constraint("Vertical", 0, 3, 1, 3),
    Sketcher.Constraint("Vertical", 2, 3, 3, 3),
    Sketcher.Constraint("Vertical", 4, 3, 5, 3),
    Sketcher.Constraint("Vertical", 6, 3, 7, 3),
    Sketcher.Constraint("Diameter", 0, 3.0),
    Sketcher.Constraint("Diameter", 4, 4.0),
    Sketcher.Constraint("DistanceY", 5, 3, 4, 3, 50.0),
    Sketcher.Constraint("DistanceX", 6, 3, 5, 3, 150.0),
    Sketcher.Constraint("DistanceX", 4, 3, -1, 1, 66.31),
    Sketcher.Constraint("DistanceY", -1, 1, 0, 3, 131.577),
    Sketcher.Constraint("DistanceY", -1, 1, 1, 3, 87.762),
    Sketcher.Constraint("DistanceY", -1, 1, 4, 3, 141.733),
    Sketcher.Constraint("DistanceX", 2, 3, 1, 3, 90.678),
    Sketcher.Constraint("DistanceX", -1, 1, 0, 3, 170.3448),
])
pocket8 = body.newObject("PartDesign::Pocket", "Pocket007")
pocket8.Profile = sketch10
pocket8.Length = 4
pocket8.Reversed = True

doc.recompute()
